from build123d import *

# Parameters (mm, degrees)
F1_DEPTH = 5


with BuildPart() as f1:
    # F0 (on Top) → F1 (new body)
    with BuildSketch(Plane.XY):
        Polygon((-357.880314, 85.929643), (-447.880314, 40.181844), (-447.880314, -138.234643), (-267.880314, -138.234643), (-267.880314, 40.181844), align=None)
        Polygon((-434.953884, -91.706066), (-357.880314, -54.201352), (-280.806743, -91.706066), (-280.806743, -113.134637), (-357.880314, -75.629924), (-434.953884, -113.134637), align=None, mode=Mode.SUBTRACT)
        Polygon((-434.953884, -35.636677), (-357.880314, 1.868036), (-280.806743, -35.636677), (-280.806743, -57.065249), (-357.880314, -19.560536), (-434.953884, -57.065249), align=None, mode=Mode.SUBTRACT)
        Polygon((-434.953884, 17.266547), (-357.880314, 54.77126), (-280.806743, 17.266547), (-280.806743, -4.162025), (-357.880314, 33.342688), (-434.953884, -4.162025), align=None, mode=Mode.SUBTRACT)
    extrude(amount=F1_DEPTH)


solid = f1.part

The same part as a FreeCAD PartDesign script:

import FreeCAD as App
import Part
import Sketcher
from FreeCAD import Vector
Q = App.Units.Quantity


def add_polygon(sketch, points):
    """Adds a closed chain of lines whose ends are joined by coincident constraints."""
    first, n = sketch.GeometryCount, len(points)
    for a, b in zip(points, points[1:] + points[:1]):
        sketch.addGeometry(Part.LineSegment(App.Vector(*a, 0), App.Vector(*b, 0)), False)
    for i in range(n):
        sketch.addConstraint(Sketcher.Constraint("Coincident", first + i, 2, first + (i + 1) % n, 1))

doc = App.newDocument("Part")
body = doc.addObject("PartDesign::Body", "Body")

sketch1 = body.newObject("Sketcher::SketchObject", "Sketch")
sketch1.AttachmentSupport = (doc.getObject("XY_Plane"), [""])
sketch1.MapMode = "FlatFace"
add_polygon(sketch1, [(-357.880314, 85.929643), (-447.880314, 40.181844), (-447.880314, -138.234643), (-267.880314, -138.234643), (-267.880314, 40.181844)])
add_polygon(sketch1, [(-434.953884, -113.134637), (-434.953884, -91.706066), (-357.880314, -54.201352), (-280.806743, -91.706066), (-280.806743, -113.134637), (-357.880314, -75.629924)])
add_polygon(sketch1, [(-434.953884, -57.065249), (-434.953884, -35.636677), (-357.880314, 1.868036), (-280.806743, -35.636677), (-280.806743, -57.065249), (-357.880314, -19.560536)])
add_polygon(sketch1, [(-434.953884, -4.162025), (-434.953884, 17.266547), (-357.880314, 54.77126), (-280.806743, 17.266547), (-280.806743, -4.162025), (-357.880314, 33.342688)])
sketch1.addConstraint(Sketcher.Constraint("Vertical", 1))
sketch1.addConstraint(Sketcher.Constraint("Horizontal", 2))
sketch1.addConstraint(Sketcher.Constraint("Vertical", 3))
sketch1.addConstraint(Sketcher.Constraint("Vertical", 5))
sketch1.addConstraint(Sketcher.Constraint("Vertical", 8))
sketch1.addConstraint(Sketcher.Constraint("Vertical", 11))
sketch1.addConstraint(Sketcher.Constraint("Vertical", 14))
sketch1.addConstraint(Sketcher.Constraint("Vertical", 17))
sketch1.addConstraint(Sketcher.Constraint("Vertical", 20))
sketch1.addConstraint(Sketcher.Constraint("Parallel", 7, 9))
sketch1.addConstraint(Sketcher.Constraint("Parallel", 6, 10))
sketch1.addConstraint(Sketcher.Constraint("Parallel", 10, 12))
sketch1.addConstraint(Sketcher.Constraint("Parallel", 9, 13))
sketch1.addConstraint(Sketcher.Constraint("Parallel", 13, 15))
sketch1.addConstraint(Sketcher.Constraint("Parallel", 12, 16))
sketch1.addConstraint(Sketcher.Constraint("Parallel", 16, 18))
sketch1.addConstraint(Sketcher.Constraint("Parallel", 15, 19))
sketch1.addConstraint(Sketcher.Constraint("Parallel", 19, 21))
sketch1.addConstraint(Sketcher.Constraint("Parallel", 18, 22))
sketch1.addConstraint(Sketcher.Constraint("Horizontal", 0, 2, 3, 2))
sketch1.addConstraint(Sketcher.Constraint("Horizontal", 5, 2, 7, 2))
sketch1.addConstraint(Sketcher.Constraint("Horizontal", 8, 2, 10, 2))
sketch1.addConstraint(Sketcher.Constraint("Horizontal", 11, 2, 13, 2))
sketch1.addConstraint(Sketcher.Constraint("Horizontal", 14, 2, 16, 2))
sketch1.addConstraint(Sketcher.Constraint("Horizontal", 17, 2, 19, 2))
sketch1.addConstraint(Sketcher.Constraint("Horizontal", 20, 2, 22, 2))
sketch1.addConstraint(Sketcher.Constraint("Vertical", 4, 2, 6, 2))
sketch1.addConstraint(Sketcher.Constraint("Vertical", 10, 2, 11, 2))
sketch1.addConstraint(Sketcher.Constraint("Vertical", 9, 2, 12, 2))
sketch1.addConstraint(Sketcher.Constraint("Vertical", 16, 2, 17, 2))
sketch1.addConstraint(Sketcher.Constraint("Vertical", 15, 2, 18, 2))
sketch1.addConstraint(Sketcher.Constraint("Equal", 8, 11))
sketch1.addConstraint(Sketcher.Constraint("Equal", 14, 17))
sketch1.addConstraint(Sketcher.Constraint("Equal", 0, 4))
sketch1.addConstraint(Sketcher.Constraint("Equal", 6, 7))
sketch1.addConstraint(Sketcher.Constraint("DistanceX", 2, 1, 2, 2, Q("180 mm")))
sketch1.addConstraint(Sketcher.Constraint("Distance", 0, Q("100.9597 mm")))
sketch1.addConstraint(Sketcher.Constraint("DistanceY", 5, 1, 5, 2, Q("21.428571 mm")))
sketch1.addConstraint(Sketcher.Constraint("DistanceY", 1, 2, 1, 1, Q("178.416487 mm")))
sketch1.addConstraint(Sketcher.Constraint("DistanceY", 14, 2, -1, 1, Q("57.065249 mm")))
sketch1.addConstraint(Sketcher.Constraint("DistanceY", -1, 1, 18, 2, Q("54.77126 mm")))
sketch1.addConstraint(Sketcher.Constraint("DistanceX", 1, 2, 5, 2, Q("12.92643 mm")))
sketch1.addConstraint(Sketcher.Constraint("DistanceY", 5, 2, 0, 2, Q("131.88791 mm")))
sketch1.addConstraint(Sketcher.Constraint("DistanceY", 1, 2, 6, 2, Q("84.033291 mm")))
sketch1.addConstraint(Sketcher.Constraint("DistanceY", 5, 2, 11, 2, Q("56.069389 mm")))
sketch1.addConstraint(Sketcher.Constraint("DistanceX", 0, 2, -1, 1, Q("447.880314 mm")))
pad1 = body.newObject("PartDesign::Pad", "Pad")
pad1.Profile = sketch1
pad1.Length = 5

doc.recompute()
